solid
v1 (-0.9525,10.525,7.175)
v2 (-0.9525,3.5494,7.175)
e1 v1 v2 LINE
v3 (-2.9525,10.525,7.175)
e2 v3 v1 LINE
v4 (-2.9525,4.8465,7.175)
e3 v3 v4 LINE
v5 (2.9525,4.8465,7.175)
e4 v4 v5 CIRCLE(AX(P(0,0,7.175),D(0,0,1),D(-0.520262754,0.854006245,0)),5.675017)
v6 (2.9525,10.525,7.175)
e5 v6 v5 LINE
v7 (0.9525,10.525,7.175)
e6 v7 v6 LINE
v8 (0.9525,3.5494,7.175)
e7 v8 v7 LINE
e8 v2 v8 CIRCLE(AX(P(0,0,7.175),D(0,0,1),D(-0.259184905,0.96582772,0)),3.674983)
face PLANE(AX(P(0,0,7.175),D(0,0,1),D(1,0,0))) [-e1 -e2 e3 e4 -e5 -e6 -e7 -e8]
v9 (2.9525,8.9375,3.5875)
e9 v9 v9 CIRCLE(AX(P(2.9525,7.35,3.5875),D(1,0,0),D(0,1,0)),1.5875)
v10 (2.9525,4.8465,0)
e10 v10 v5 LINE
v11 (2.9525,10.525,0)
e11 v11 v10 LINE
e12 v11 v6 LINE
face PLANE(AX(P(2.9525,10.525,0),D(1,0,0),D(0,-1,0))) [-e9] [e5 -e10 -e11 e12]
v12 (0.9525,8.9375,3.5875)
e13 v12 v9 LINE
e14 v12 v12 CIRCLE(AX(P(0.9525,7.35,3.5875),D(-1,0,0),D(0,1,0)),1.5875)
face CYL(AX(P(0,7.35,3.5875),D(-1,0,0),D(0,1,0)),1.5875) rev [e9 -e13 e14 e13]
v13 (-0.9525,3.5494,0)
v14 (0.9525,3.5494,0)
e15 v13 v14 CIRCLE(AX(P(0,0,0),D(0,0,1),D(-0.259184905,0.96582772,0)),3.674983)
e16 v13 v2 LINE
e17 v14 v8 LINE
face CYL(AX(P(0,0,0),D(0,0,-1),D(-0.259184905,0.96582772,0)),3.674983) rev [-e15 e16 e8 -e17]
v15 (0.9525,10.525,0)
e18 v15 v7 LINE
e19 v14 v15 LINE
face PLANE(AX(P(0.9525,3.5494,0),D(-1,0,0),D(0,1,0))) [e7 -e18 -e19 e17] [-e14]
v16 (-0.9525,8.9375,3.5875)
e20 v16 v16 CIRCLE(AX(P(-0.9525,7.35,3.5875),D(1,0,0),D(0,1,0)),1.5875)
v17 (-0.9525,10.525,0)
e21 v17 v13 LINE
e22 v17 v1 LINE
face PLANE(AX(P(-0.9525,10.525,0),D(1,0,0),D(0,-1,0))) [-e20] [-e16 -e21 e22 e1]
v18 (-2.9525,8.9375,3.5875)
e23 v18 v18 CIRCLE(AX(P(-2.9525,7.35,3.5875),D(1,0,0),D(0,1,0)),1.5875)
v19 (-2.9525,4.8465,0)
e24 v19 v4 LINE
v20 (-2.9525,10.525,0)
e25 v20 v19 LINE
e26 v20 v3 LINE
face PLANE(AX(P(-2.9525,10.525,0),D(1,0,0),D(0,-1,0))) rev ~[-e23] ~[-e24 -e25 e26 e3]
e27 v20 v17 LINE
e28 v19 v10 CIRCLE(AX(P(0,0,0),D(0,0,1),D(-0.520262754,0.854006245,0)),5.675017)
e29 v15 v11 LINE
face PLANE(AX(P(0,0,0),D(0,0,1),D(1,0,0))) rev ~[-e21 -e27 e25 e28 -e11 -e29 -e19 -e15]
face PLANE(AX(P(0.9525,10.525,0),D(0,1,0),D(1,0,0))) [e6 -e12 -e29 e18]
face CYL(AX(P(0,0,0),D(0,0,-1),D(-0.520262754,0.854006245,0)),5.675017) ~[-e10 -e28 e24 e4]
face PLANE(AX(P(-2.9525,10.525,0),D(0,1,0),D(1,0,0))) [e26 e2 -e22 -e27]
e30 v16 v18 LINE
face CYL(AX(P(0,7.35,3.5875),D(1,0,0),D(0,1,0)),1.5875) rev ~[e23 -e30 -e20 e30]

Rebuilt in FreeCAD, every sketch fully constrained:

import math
import FreeCAD as App
import Part
import Sketcher
Q = App.Units.Quantity

doc = App.newDocument("Part")
body = doc.addObject("PartDesign::Body", "Body")

sketch1 = doc.addObject("Sketcher::SketchObject", "Sketch")
body.addObject(sketch1)
sketch1.AttachmentSupport = (doc.XY_Plane, [""])
sketch1.MapMode = "FlatFace"
sketch1.addGeometry(Part.ArcOfCircle(Part.Circle(App.Vector(0, 0, 0), App.Vector(0, 0, 1), 3.7), math.radians(105), math.radians(435)), False)
sketch1.addGeometry(Part.LineSegment(App.Vector(-1, 3.5, 0), App.Vector(-1, 10.5, 0)), False)
sketch1.addGeometry(Part.LineSegment(App.Vector(-1, 10.5, 0), App.Vector(-3, 10.5, 0)), False)
sketch1.addGeometry(Part.LineSegment(App.Vector(-3, 10.5, 0), App.Vector(-3, 4.8, 0)), False)
sketch1.addGeometry(Part.ArcOfCircle(Part.Circle(App.Vector(0, 0, 0), App.Vector(0, 0, 1), 5.7), math.radians(121), math.radians(419)), False)
sketch1.addGeometry(Part.LineSegment(App.Vector(3, 4.8, 0), App.Vector(3, 10.5, 0)), False)
sketch1.addGeometry(Part.LineSegment(App.Vector(3, 10.5, 0), App.Vector(1, 10.5, 0)), False)
sketch1.addGeometry(Part.LineSegment(App.Vector(1, 10.5, 0), App.Vector(1, 3.5, 0)), False)
sketch1.addConstraint(Sketcher.Constraint("Coincident", 0, 1, 1, 1))
sketch1.addConstraint(Sketcher.Constraint("Coincident", 1, 2, 2, 1))
sketch1.addConstraint(Sketcher.Constraint("Coincident", 2, 2, 3, 1))
sketch1.addConstraint(Sketcher.Constraint("Coincident", 3, 2, 4, 1))
sketch1.addConstraint(Sketcher.Constraint("Coincident", 4, 2, 5, 1))
sketch1.addConstraint(Sketcher.Constraint("Coincident", 5, 2, 6, 1))
sketch1.addConstraint(Sketcher.Constraint("Coincident", 6, 2, 7, 1))
sketch1.addConstraint(Sketcher.Constraint("Coincident", 7, 2, 0, 2))
sketch1.addConstraint(Sketcher.Constraint("Vertical", 1))
sketch1.addConstraint(Sketcher.Constraint("Horizontal", 2))
sketch1.addConstraint(Sketcher.Constraint("Vertical", 3))
sketch1.addConstraint(Sketcher.Constraint("Vertical", 5))
sketch1.addConstraint(Sketcher.Constraint("Horizontal", 6))
sketch1.addConstraint(Sketcher.Constraint("Vertical", 7))
sketch1.addConstraint(Sketcher.Constraint("Coincident", 0, 3, -1, 1))
sketch1.addConstraint(Sketcher.Constraint("Coincident", 4, 3, -1, 1))
sketch1.addConstraint(Sketcher.Constraint("Symmetric", 2, 2, 5, 2, -2))
sketch1.addConstraint(Sketcher.Constraint("Horizontal", 0, 1, 7, 2))
sketch1.addConstraint(Sketcher.Constraint("DistanceX", 2, 2, 2, 1, Q("2 mm")))
sketch1.addConstraint(Sketcher.Constraint("Radius", 0, Q("3.675 mm")))
sketch1.addConstraint(Sketcher.Constraint("DistanceY", -1, 1, 1, 2, Q("10.525 mm")))
sketch1.addConstraint(Sketcher.Constraint("Radius", 4, Q("5.675 mm")))
sketch1.addConstraint(Sketcher.Constraint("DistanceX", 1, 2, 6, 2, Q("1.905 mm")))
pad1 = doc.addObject("PartDesign::Pad", "Pad")
body.addObject(pad1)
pad1.Profile = sketch1
pad1.Length = 7.175

sketch2 = doc.addObject("Sketcher::SketchObject", "Sketch001")
body.addObject(sketch2)
sketch2.AttachmentSupport = (doc.YZ_Plane, [""])
sketch2.MapMode = "FlatFace"
sketch2.addGeometry(Part.Circle(App.Vector(7.3, 3.6, 0), App.Vector(0, 0, 1), 1.6), False)
sketch2.addConstraint(Sketcher.Constraint("Diameter", 0, Q("3.175 mm")))
sketch2.addConstraint(Sketcher.Constraint("DistanceX", -1, 1, 0, 3, Q("7.35 mm")))
sketch2.addConstraint(Sketcher.Constraint("DistanceY", -1, 1, 0, 3, Q("3.5875 mm")))
pocket1 = doc.addObject("PartDesign::Pocket", "Pocket")
body.addObject(pocket1)
pocket1.Profile = sketch2
pocket1.Length = 5.905
pocket1.Midplane = True

doc.recompute()
